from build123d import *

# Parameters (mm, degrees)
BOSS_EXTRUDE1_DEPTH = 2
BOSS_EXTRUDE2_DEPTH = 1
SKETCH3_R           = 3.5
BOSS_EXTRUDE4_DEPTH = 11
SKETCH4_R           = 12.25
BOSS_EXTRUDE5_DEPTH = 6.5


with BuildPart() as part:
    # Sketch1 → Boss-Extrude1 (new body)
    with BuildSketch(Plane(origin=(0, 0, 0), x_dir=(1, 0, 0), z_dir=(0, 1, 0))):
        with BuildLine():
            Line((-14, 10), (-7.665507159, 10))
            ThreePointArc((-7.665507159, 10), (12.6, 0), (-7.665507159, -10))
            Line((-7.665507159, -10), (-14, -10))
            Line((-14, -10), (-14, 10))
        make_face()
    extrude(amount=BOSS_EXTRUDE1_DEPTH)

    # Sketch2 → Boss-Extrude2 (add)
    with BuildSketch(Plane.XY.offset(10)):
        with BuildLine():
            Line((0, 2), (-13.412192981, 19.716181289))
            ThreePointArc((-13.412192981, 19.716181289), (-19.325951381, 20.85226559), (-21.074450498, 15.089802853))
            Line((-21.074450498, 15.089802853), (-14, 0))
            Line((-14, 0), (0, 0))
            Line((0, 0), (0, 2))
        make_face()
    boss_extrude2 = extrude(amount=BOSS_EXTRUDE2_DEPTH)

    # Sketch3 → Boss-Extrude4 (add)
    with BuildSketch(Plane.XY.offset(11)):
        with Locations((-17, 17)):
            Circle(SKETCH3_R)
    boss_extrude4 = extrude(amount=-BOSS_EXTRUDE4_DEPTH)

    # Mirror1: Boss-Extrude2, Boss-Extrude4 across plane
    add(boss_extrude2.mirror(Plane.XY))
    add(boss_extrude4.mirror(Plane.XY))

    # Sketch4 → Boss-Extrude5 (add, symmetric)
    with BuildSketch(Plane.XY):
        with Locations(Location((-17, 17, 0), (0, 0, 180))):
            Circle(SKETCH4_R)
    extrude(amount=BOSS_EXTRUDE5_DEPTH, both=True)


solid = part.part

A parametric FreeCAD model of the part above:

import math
import FreeCAD as App
import Part
import Sketcher
from FreeCAD import Vector
Q = App.Units.Quantity

doc = App.newDocument("Part")
params = doc.addObject("Spreadsheet::Sheet", "Params")
for row, (alias, value) in enumerate([
    ("sketch1_radius", "12.6 mm"),
    ("sketch1_height", "20 mm"),
    ("pad1_length", "2 mm"),
    ("sketch2_radius", "4.5 mm"),
    ("sketch2_width", "14 mm"),
    ("sketch2_height", "2 mm"),
    ("pad2_length", "1 mm"),
    ("sketch3_diameter", "7 mm"),
    ("pad3_length", "11 mm"),
    ("sketch4_diameter", "24.5 mm"),
    ("pad4_length", "13 mm"),
], start=1):
    params.set(f"A{row}", alias)
    params.set(f"B{row}", "=" + value)
    params.setAlias(f"B{row}", alias)

body = doc.addObject("PartDesign::Body", "Body")

# Sketch on XZ plane
sketch1 = body.newObject("Sketcher::SketchObject", "Sketch")
sketch1.AttachmentSupport = (doc.getObject("XZ_Plane"), [""])
sketch1.MapMode = "FlatFace"
sketch1.addGeometry([
    Part.LineSegment(Vector(-7.665507, -10, 0), Vector(-14, -10, 0)),
    Part.LineSegment(Vector(-14, -10, 0), Vector(-14, 10, 0)),
    Part.LineSegment(Vector(-14, 10, 0), Vector(-7.665507, 10, 0)),
    Part.ArcOfCircle(Part.Circle(Vector(0, 0, 0), Vector(0, 0, 1), 12.6), math.radians(-127.471995), math.radians(127.471995)),
], False)
sketch1.addConstraint([
    Sketcher.Constraint("Coincident", 0, 2, 1, 1),
    Sketcher.Constraint("Coincident", 1, 2, 2, 1),
    Sketcher.Constraint("Coincident", 2, 2, 3, 2),
    Sketcher.Constraint("Coincident", 3, 1, 0, 1),
    Sketcher.Constraint("Horizontal", 0),
    Sketcher.Constraint("Vertical", 1),
    Sketcher.Constraint("Horizontal", 2),
    Sketcher.Constraint("Coincident", 3, 3, -1, 1),
    Sketcher.Constraint("Vertical", 2, 2, 3, 1),
    Sketcher.Constraint("Radius", 3, Q("12.6 mm")),
    Sketcher.Constraint("DistanceY", 1, 1, 1, 2, Q("20 mm")),
    Sketcher.Constraint("DistanceX", 0, 2, -1, 1, Q("14 mm")),
])
sketch1.setExpression("Constraints[9]", "Params.sketch1_radius")
sketch1.setExpression("Constraints[10]", "Params.sketch1_height")
pad1 = body.newObject("PartDesign::Pad", "Pad")
pad1.Profile = sketch1
pad1.setExpression("Length", "Params.pad1_length")
pad1.Reversed = True

# Sketch on XY plane
sketch2 = body.newObject("Sketcher::SketchObject", "Sketch001")
sketch2.AttachmentSupport = (doc.getObject("XY_Plane"), [""])
sketch2.MapMode = "FlatFace"
sketch2.AttachmentOffset = App.Placement(Vector(0, 0, 10), App.Rotation())
sketch2.addGeometry([
    Part.LineSegment(Vector(0, 2, 0), Vector(-13.412193, 19.716181, 0)),  # 0
    Part.ArcOfCircle(Part.Circle(Vector(-17, 17, 0), Vector(0, 0, 1), 4.5), math.radians(37.127867), math.radians(205.118276)),  # 1
    Part.LineSegment(Vector(-21.07445, 15.089803, 0), Vector(-14, 0, 0)),  # 2
    Part.LineSegment(Vector(-14, 0, 0), Vector(0, 0, 0)),  # 3
    Part.LineSegment(Vector(0, 0, 0), Vector(0, 2, 0)),  # 4
], False)
sketch2.addConstraint([
    Sketcher.Constraint("Tangent", 0, 2, 1, 1),
    Sketcher.Constraint("Tangent", 1, 2, 2, 1),
    Sketcher.Constraint("Coincident", 2, 2, 3, 1),
    Sketcher.Constraint("Coincident", 3, 2, 4, 1),
    Sketcher.Constraint("Coincident", 4, 2, 0, 1),
    Sketcher.Constraint("Horizontal", 3),
    Sketcher.Constraint("Vertical", 4),
    Sketcher.Constraint("Coincident", 3, 2, -1, 1),
    Sketcher.Constraint("Radius", 1, Q("4.5 mm")),
    Sketcher.Constraint("DistanceX", 3, 1, 3, 2, Q("14 mm")),
    Sketcher.Constraint("DistanceY", 4, 1, 4, 2, Q("2 mm")),
    Sketcher.Constraint("DistanceX", 1, 3, -1, 1, Q("17 mm")),
    Sketcher.Constraint("DistanceY", -1, 1, 1, 3, Q("17 mm")),
])
sketch2.setExpression("Constraints[8]", "Params.sketch2_radius")
sketch2.setExpression("Constraints[9]", "Params.sketch2_width")
sketch2.setExpression("Constraints[10]", "Params.sketch2_height")
pad2 = body.newObject("PartDesign::Pad", "Pad001")
pad2.Profile = sketch2
pad2.setExpression("Length", "Params.pad2_length")

# Sketch on XY plane
sketch3 = body.newObject("Sketcher::SketchObject", "Sketch002")
sketch3.AttachmentSupport = (doc.getObject("XY_Plane"), [""])
sketch3.MapMode = "FlatFace"
sketch3.AttachmentOffset = App.Placement(Vector(0, 0, 11), App.Rotation())
sketch3.addGeometry(Part.Circle(Vector(-17, 17, 0), Vector(0, 0, 1), 3.5), False)
sketch3.addConstraint([
    Sketcher.Constraint("Diameter", 0, Q("7 mm")),
    Sketcher.Constraint("DistanceX", 0, 3, -1, 1, Q("17 mm")),
    Sketcher.Constraint("DistanceY", -1, 1, 0, 3, Q("17 mm")),
])
sketch3.setExpression("Constraints[0]", "Params.sketch3_diameter")
pad3 = body.newObject("PartDesign::Pad", "Pad002")
pad3.Profile = sketch3
pad3.setExpression("Length", "Params.pad3_length")
pad3.Reversed = True
doc.recompute()

mirrored = body.newObject("PartDesign::Mirrored", "Mirrored")
mirrored.Originals = [pad2, pad3]
mirrored.MirrorPlane = (doc.getObject("XY_Plane"), [""])
body.Tip = mirrored

# Sketch on XY plane
sketch4 = body.newObject("Sketcher::SketchObject", "Sketch003")
sketch4.AttachmentSupport = (doc.getObject("XY_Plane"), [""])
sketch4.MapMode = "FlatFace"
sketch4.addGeometry(Part.Circle(Vector(-17, 17, 0), Vector(0, 0, 1), 12.25), False)
sketch4.addConstraint([
    Sketcher.Constraint("Diameter", 0, Q("24.5 mm")),
    Sketcher.Constraint("DistanceX", 0, 3, -1, 1, Q("17 mm")),
    Sketcher.Constraint("DistanceY", -1, 1, 0, 3, Q("17 mm")),
])
sketch4.setExpression("Constraints[0]", "Params.sketch4_diameter")
pad4 = body.newObject("PartDesign::Pad", "Pad003")
pad4.Profile = sketch4
pad4.setExpression("Length", "Params.pad4_length")
pad4.Midplane = True

doc.recompute()
